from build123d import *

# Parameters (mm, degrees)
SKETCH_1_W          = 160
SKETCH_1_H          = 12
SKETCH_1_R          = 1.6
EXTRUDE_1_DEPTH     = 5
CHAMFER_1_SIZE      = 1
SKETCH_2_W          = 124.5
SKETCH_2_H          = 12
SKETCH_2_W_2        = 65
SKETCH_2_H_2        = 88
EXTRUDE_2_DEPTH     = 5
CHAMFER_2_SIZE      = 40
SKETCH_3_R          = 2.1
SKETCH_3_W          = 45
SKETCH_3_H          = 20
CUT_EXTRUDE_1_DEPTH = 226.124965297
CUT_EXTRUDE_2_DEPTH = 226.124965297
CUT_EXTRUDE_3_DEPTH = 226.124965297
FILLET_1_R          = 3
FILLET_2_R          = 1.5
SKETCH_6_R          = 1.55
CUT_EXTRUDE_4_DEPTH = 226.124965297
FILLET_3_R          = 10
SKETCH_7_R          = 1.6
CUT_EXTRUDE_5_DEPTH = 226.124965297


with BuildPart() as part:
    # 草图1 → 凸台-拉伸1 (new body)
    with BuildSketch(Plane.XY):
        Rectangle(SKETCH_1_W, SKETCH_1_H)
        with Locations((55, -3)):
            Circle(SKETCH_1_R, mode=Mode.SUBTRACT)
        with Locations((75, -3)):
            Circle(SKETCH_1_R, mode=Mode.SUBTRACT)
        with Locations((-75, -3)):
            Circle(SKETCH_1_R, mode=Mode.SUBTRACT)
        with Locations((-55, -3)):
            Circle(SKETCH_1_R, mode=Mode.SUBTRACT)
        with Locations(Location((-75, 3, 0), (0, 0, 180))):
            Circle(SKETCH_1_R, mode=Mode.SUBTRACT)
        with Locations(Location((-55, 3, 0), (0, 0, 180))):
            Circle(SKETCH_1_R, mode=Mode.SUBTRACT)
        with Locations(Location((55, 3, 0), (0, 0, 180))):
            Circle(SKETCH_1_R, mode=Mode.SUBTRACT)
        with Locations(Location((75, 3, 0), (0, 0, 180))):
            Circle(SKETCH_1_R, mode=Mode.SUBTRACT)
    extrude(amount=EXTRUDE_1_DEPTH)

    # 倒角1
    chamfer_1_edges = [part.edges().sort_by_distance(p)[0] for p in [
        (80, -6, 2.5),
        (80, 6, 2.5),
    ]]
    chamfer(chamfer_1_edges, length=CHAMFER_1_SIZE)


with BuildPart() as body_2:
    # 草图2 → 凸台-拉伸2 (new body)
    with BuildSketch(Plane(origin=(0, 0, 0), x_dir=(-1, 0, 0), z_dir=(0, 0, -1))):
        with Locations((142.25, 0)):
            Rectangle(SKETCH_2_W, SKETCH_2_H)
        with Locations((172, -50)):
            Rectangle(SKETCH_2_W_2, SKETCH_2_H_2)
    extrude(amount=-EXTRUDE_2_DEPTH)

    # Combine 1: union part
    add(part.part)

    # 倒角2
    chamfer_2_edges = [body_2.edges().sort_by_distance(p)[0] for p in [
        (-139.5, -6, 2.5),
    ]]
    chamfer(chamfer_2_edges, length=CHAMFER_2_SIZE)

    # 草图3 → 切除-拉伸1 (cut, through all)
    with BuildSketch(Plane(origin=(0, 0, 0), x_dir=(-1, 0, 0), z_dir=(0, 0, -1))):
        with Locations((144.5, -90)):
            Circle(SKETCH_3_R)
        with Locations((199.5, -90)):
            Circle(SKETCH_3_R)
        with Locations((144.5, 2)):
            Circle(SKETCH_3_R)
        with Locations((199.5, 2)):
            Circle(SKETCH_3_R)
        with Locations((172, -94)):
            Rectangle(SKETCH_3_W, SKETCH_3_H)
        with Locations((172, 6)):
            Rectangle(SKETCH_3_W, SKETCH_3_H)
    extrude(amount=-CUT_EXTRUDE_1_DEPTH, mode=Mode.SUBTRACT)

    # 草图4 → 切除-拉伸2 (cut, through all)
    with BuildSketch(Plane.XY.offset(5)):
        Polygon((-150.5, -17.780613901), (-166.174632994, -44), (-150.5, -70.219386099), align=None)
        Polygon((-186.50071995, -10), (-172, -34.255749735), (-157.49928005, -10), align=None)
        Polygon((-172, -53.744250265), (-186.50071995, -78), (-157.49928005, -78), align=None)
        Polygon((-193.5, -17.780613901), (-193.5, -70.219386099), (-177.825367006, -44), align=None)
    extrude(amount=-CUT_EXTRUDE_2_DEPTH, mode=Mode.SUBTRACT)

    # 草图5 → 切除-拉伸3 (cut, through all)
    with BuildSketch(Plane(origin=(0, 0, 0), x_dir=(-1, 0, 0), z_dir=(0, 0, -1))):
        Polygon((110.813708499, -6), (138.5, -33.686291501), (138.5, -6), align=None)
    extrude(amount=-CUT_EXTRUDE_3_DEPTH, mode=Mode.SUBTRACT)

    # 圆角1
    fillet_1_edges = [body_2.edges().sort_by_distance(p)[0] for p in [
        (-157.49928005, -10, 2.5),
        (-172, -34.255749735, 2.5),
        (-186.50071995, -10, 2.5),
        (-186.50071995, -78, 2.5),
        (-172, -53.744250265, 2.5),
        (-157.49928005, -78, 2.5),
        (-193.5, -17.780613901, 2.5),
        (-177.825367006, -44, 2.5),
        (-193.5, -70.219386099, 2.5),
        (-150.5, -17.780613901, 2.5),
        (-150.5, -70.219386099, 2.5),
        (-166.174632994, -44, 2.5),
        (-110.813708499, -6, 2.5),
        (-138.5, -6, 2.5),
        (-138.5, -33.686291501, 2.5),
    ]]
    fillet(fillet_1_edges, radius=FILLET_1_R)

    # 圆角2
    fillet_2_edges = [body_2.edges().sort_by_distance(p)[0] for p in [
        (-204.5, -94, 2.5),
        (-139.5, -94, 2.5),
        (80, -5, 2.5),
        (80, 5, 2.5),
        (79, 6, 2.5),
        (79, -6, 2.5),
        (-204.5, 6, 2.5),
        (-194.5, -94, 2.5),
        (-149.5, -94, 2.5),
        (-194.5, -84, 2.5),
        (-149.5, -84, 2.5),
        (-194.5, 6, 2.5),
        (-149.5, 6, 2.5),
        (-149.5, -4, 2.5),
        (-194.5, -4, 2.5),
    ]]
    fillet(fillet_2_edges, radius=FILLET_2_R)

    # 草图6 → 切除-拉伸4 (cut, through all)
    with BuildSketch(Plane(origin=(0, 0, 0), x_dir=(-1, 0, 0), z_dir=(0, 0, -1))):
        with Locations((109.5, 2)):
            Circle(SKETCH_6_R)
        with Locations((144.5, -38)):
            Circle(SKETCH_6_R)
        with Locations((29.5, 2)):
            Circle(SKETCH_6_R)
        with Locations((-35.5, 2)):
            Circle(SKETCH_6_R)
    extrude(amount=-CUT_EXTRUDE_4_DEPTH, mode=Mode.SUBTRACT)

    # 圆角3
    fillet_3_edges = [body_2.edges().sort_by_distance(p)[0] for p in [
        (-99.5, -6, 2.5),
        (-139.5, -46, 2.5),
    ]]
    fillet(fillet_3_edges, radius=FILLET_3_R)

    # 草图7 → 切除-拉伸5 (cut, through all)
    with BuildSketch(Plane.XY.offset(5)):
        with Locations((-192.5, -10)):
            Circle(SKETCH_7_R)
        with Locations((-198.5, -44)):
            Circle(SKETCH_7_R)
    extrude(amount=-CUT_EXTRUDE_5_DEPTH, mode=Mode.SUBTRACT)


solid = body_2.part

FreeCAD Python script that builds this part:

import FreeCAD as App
import Part
import Sketcher
from FreeCAD import Vector


def edges_at(feature, points):
    """Names of the edges that pass closest to the given points."""
    edges = feature.Shape.Edges
    near = lambda p: min(range(len(edges)), key=lambda i: edges[i].distToShape(Part.Vertex(*p))[0])
    return sorted({f"Edge{near(p) + 1}" for p in points})


def add_polygon(sketch, points):
    """Adds a closed chain of lines whose ends are joined by coincident constraints."""
    first, n = sketch.GeometryCount, len(points)
    for a, b in zip(points, points[1:] + points[:1]):
        sketch.addGeometry(Part.LineSegment(App.Vector(*a, 0), App.Vector(*b, 0)), False)
    for i in range(n):
        sketch.addConstraint(Sketcher.Constraint("Coincident", first + i, 2, first + (i + 1) % n, 1))

doc = App.newDocument("Part")
body = doc.addObject("PartDesign::Body", "Body")

# Sketch on XY plane
sketch1 = body.newObject("Sketcher::SketchObject", "Sketch")
sketch1.AttachmentSupport = (doc.getObject("XY_Plane"), [""])
sketch1.MapMode = "FlatFace"
add_polygon(sketch1, [(-80, 6), (-80, -6), (80, -6), (80, 6)])  # lines 0-3
sketch1.addGeometry(Part.Circle(Vector(-75, -3, 0), Vector(0, 0, 1), 1.6), False)  # 4
sketch1.addGeometry(Part.Circle(Vector(-55, -3, 0), Vector(0, 0, 1), 1.6), False)  # 5
sketch1.addGeometry(Part.Circle(Vector(55, -3, 0), Vector(0, 0, 1), 1.6), False)  # 6
sketch1.addGeometry(Part.Circle(Vector(75, -3, 0), Vector(0, 0, 1), 1.6), False)  # 7
sketch1.addGeometry(Part.Circle(Vector(-75, 3, 0), Vector(0, 0, 1), 1.6), False)  # 8
sketch1.addGeometry(Part.Circle(Vector(-55, 3, 0), Vector(0, 0, 1), 1.6), False)  # 9
sketch1.addGeometry(Part.Circle(Vector(55, 3, 0), Vector(0, 0, 1), 1.6), False)  # 10
sketch1.addGeometry(Part.Circle(Vector(75, 3, 0), Vector(0, 0, 1), 1.6), False)  # 11
sketch1.addConstraint([
    Sketcher.Constraint("Vertical", 0),
    Sketcher.Constraint("Horizontal", 1),
    Sketcher.Constraint("Vertical", 2),
    Sketcher.Constraint("Horizontal", 3),
    Sketcher.Constraint("Equal", 4, 5),
    Sketcher.Constraint("Equal", 5, 6),
    Sketcher.Constraint("Equal", 6, 7),
    Sketcher.Constraint("Equal", 7, 8),
    Sketcher.Constraint("Equal", 8, 9),
    Sketcher.Constraint("Equal", 9, 10),
    Sketcher.Constraint("Equal", 10, 11),
    Sketcher.Constraint("Symmetric", 7, 3, 8, 3, -1, 1),
    Sketcher.Constraint("Symmetric", 6, 3, 9, 3, -1, 1),
    Sketcher.Constraint("Symmetric", 5, 3, 10, 3, -1, 1),
    Sketcher.Constraint("Symmetric", 4, 3, 11, 3, -1, 1),
    Sketcher.Constraint("Symmetric", 0, 2, 2, 2, -1, 1),
    Sketcher.Constraint("Symmetric", 5, 3, 6, 3, -2),
    Sketcher.Constraint("Symmetric", 4, 3, 7, 3, -2),
    Sketcher.Constraint("Horizontal", 4, 3, 5, 3),
    Sketcher.Constraint("Diameter", 4, 3.2),
    Sketcher.Constraint("DistanceX", 1, 1, 1, 2, 160.0),
    Sketcher.Constraint("DistanceY", 0, 2, 0, 1, 12.0),
    Sketcher.Constraint("DistanceX", 4, 3, -1, 1, 75.0),
    Sketcher.Constraint("DistanceY", 4, 3, -1, 1, 3.0),
    Sketcher.Constraint("DistanceX", 5, 3, -1, 1, 55.0),
])
pad1 = body.newObject("PartDesign::Pad", "Pad")
pad1.Profile = sketch1
pad1.Length = 5
doc.recompute()

chamfer = body.newObject("PartDesign::Chamfer", "Chamfer")
chamfer.Base = (pad1, edges_at(pad1, [(80, -6, 2.5), (80, 6, 2.5)]))
chamfer.Size = 1
body2 = doc.addObject("PartDesign::Body", "Body001")

# Sketch on XY plane
sketch2 = body2.newObject("Sketcher::SketchObject", "Sketch001")
sketch2.AttachmentSupport = (doc.getObject("XY_Plane001"), [""])
sketch2.MapMode = "FlatFace"
add_polygon(sketch2, [(-80, 6), (-80, -6), (-140, -6), (-140, -94), (-204, -94), (-204, 6)])  # lines 0-5
sketch2.addConstraint([
    Sketcher.Constraint("Vertical", 0),
    Sketcher.Constraint("Horizontal", 1),
    Sketcher.Constraint("Vertical", 2),
    Sketcher.Constraint("Horizontal", 3),
    Sketcher.Constraint("Vertical", 4),
    Sketcher.Constraint("Horizontal", 5),
    Sketcher.Constraint("DistanceX", 3, 2, 3, 1, 65.0),
    Sketcher.Constraint("DistanceY", 0, 2, 0, 1, 12.0),
    Sketcher.Constraint("DistanceY", 2, 2, 2, 1, 88.0),
    Sketcher.Constraint("DistanceX", 1, 2, 1, 1, 59.5),
    Sketcher.Constraint("DistanceX", 0, 2, -1, 1, 80.0),
    Sketcher.Constraint("DistanceY", 0, 2, -1, 1, 6.0),
])
pad2 = body2.newObject("PartDesign::Pad", "Pad001")
pad2.Profile = sketch2
pad2.Length = 5
doc.recompute()

boolean = body2.newObject("PartDesign::Boolean", "Boolean")
boolean.Type = "Fuse"
boolean.addObjects([body])
doc.recompute()

chamfer2 = body2.newObject("PartDesign::Chamfer", "Chamfer001")
chamfer2.Base = (boolean, edges_at(boolean, [(-139.5, -6, 2.5)]))
chamfer2.Size = 40

# Sketch on XY plane
sketch3 = body2.newObject("Sketcher::SketchObject", "Sketch002")
sketch3.AttachmentSupport = (doc.getObject("XY_Plane001"), [""])
sketch3.MapMode = "FlatFace"
sketch3.addGeometry(Part.Circle(Vector(-144.5, -90, 0), Vector(0, 0, 1), 2.1), False)  # 0
sketch3.addGeometry(Part.Circle(Vector(-199.5, -90, 0), Vector(0, 0, 1), 2.1), False)  # 1
sketch3.addGeometry(Part.Circle(Vector(-144.5, 2, 0), Vector(0, 0, 1), 2.1), False)  # 2
sketch3.addGeometry(Part.Circle(Vector(-199.5, 2, 0), Vector(0, 0, 1), 2.1), False)  # 3
add_polygon(sketch3, [(-149.5, -84), (-149.5, -104), (-194.5, -104), (-194.5, -84)])  # lines 4-7
add_polygon(sketch3, [(-149.5, 16), (-149.5, -4), (-194.5, -4), (-194.5, 16)])  # lines 8-11
sketch3.addConstraint([
    Sketcher.Constraint("Vertical", 4),
    Sketcher.Constraint("Horizontal", 5),
    Sketcher.Constraint("Vertical", 6),
    Sketcher.Constraint("Horizontal", 7),
    Sketcher.Constraint("Vertical", 8),
    Sketcher.Constraint("Horizontal", 9),
    Sketcher.Constraint("Vertical", 10),
    Sketcher.Constraint("Horizontal", 11),
    Sketcher.Constraint("Equal", 0, 1),
    Sketcher.Constraint("Equal", 1, 2),
    Sketcher.Constraint("Equal", 2, 3),
    Sketcher.Constraint("Horizontal", 0, 3, 1, 3),
    Sketcher.Constraint("Horizontal", 2, 3, 3, 3),
    Sketcher.Constraint("Vertical", 0, 3, 2, 3),
    Sketcher.Constraint("Vertical", 1, 3, 3, 3),
    Sketcher.Constraint("Vertical", 7, 2, 8, 2),
    Sketcher.Constraint("Vertical", 6, 2, 9, 2),
    Sketcher.Constraint("Equal", 6, 8),
    Sketcher.Constraint("Diameter", 0, 4.2),
    Sketcher.Constraint("DistanceX", 5, 2, 5, 1, 45.0),
    Sketcher.Constraint("DistanceY", 4, 2, 4, 1, 20.0),
    Sketcher.Constraint("DistanceY", 0, 3, -1, 1, 90.0),
    Sketcher.Constraint("DistanceY", -1, 1, 2, 3, 2.0),
    Sketcher.Constraint("DistanceY", 4, 2, -1, 1, 104.0),
    Sketcher.Constraint("DistanceY", 8, 2, -1, 1, 4.0),
    Sketcher.Constraint("DistanceX", 1, 3, 0, 3, 55.0),
    Sketcher.Constraint("DistanceX", 4, 2, 0, 3, 5.0),
    Sketcher.Constraint("DistanceX", 0, 3, -1, 1, 144.5),
])
pocket1 = body2.newObject("PartDesign::Pocket", "Pocket")
pocket1.Profile = sketch3
pocket1.Type = "ThroughAll"
pocket1.Reversed = True

# Sketch on XY plane
sketch4 = body2.newObject("Sketcher::SketchObject", "Sketch003")
sketch4.AttachmentSupport = (doc.getObject("XY_Plane001"), [""])
sketch4.MapMode = "FlatFace"
sketch4.AttachmentOffset = App.Placement(Vector(0, 0, 5), App.Rotation())
add_polygon(sketch4, [(-150, -18), (-166, -44), (-150, -70)])  # lines 0-2
add_polygon(sketch4, [(-187, -10), (-172, -34), (-157, -10)])  # lines 3-5
add_polygon(sketch4, [(-172, -54), (-187, -78), (-157, -78)])  # lines 6-8
add_polygon(sketch4, [(-194, -18), (-194, -70), (-178, -44)])  # lines 9-11
sketch4.addConstraint([
    Sketcher.Constraint("Vertical", 2),
    Sketcher.Constraint("Horizontal", 5),
    Sketcher.Constraint("Horizontal", 7),
    Sketcher.Constraint("Vertical", 9),
    Sketcher.Constraint("Parallel", 1, 3),
    Sketcher.Constraint("Parallel", 0, 4),
    Sketcher.Constraint("Parallel", 4, 6),
    Sketcher.Constraint("Parallel", 3, 8),
    Sketcher.Constraint("Parallel", 6, 10),
    Sketcher.Constraint("Parallel", 8, 11),
    Sketcher.Constraint("Horizontal", 1, 2, 9, 2),
    Sketcher.Constraint("Horizontal", 0, 2, 10, 2),
    Sketcher.Constraint("Horizontal", 2, 2, 11, 2),
    Sketcher.Constraint("Vertical", 5, 2, 6, 2),
    Sketcher.Constraint("Vertical", 4, 2, 7, 2),
    Sketcher.Constraint("DistanceY", 0, 2, -1, 1, 44.0),
    Sketcher.Constraint("DistanceX", 3, 2, -1, 1, 172.0),
    Sketcher.Constraint("DistanceY", 4, 2, -1, 1, 10.0),
    Sketcher.Constraint("DistanceY", 6, 2, -1, 1, 78.0),
    Sketcher.Constraint("DistanceX", 1, 2, -1, 1, 150.5),
    Sketcher.Constraint("DistanceX", 9, 2, -1, 1, 193.5),
    Sketcher.Constraint("DistanceX", 5, 2, 5, 1, 29.00144),
    Sketcher.Constraint("DistanceY", 8, 2, 3, 2, 19.488501),
    Sketcher.Constraint("Distance", 0, 30.547509),
])
pocket2 = body2.newObject("PartDesign::Pocket", "Pocket001")
pocket2.Profile = sketch4
pocket2.Type = "ThroughAll"

# Sketch on XY plane
sketch5 = body2.newObject("Sketcher::SketchObject", "Sketch004")
sketch5.AttachmentSupport = (doc.getObject("XY_Plane001"), [""])
sketch5.MapMode = "FlatFace"
add_polygon(sketch5, [(-111, -6), (-138, -34), (-138, -6)])  # lines 0-2
sketch5.addConstraint([
    Sketcher.Constraint("Vertical", 1),
    Sketcher.Constraint("Horizontal", 2),
    Sketcher.Constraint("Equal", 2, 1),
    Sketcher.Constraint("DistanceY", 1, 2, -1, 1, 6.0),
    Sketcher.Constraint("DistanceX", 0, 2, -1, 1, 138.5),
    Sketcher.Constraint("DistanceX", 2, 1, 2, 2, 27.686292),
])
pocket3 = body2.newObject("PartDesign::Pocket", "Pocket002")
pocket3.Profile = sketch5
pocket3.Type = "ThroughAll"
pocket3.Reversed = True
doc.recompute()

fillet = body2.newObject("PartDesign::Fillet", "Fillet")
fillet.Base = (pocket3, edges_at(pocket3, [
    (-157.499, -10, 2.5),
    (-172, -34.256, 2.5),
    (-186.501, -10, 2.5),
    (-186.501, -78, 2.5),
    (-172, -53.744, 2.5),
    (-157.499, -78, 2.5),
    (-193.5, -17.781, 2.5),
    (-177.825, -44, 2.5),
    (-193.5, -70.219, 2.5),
    (-150.5, -17.781, 2.5),
    (-150.5, -70.219, 2.5),
    (-166.175, -44, 2.5),
    (-110.814, -6, 2.5),
    (-138.5, -6, 2.5),
    (-138.5, -33.686, 2.5),
]))
fillet.Radius = 3
doc.recompute()

fillet2 = body2.newObject("PartDesign::Fillet", "Fillet001")
fillet2.Base = (fillet, edges_at(fillet, [
    (-204.5, -94, 2.5),
    (-139.5, -94, 2.5),
    (80, -5, 2.5),
    (80, 5, 2.5),
    (79, 6, 2.5),
    (79, -6, 2.5),
    (-204.5, 6, 2.5),
    (-194.5, -94, 2.5),
    (-149.5, -94, 2.5),
    (-194.5, -84, 2.5),
    (-149.5, -84, 2.5),
    (-194.5, 6, 2.5),
    (-149.5, 6, 2.5),
    (-149.5, -4, 2.5),
    (-194.5, -4, 2.5),
]))
fillet2.Radius = 1.5

# Sketch on XY plane
sketch6 = body2.newObject("Sketcher::SketchObject", "Sketch005")
sketch6.AttachmentSupport = (doc.getObject("XY_Plane001"), [""])
sketch6.MapMode = "FlatFace"
sketch6.addGeometry([
    Part.Circle(Vector(-109.5, 2, 0), Vector(0, 0, 1), 1.6),
    Part.Circle(Vector(-144.5, -38, 0), Vector(0, 0, 1), 1.6),
    Part.Circle(Vector(-29.5, 2, 0), Vector(0, 0, 1), 1.6),
    Part.Circle(Vector(35.5, 2, 0), Vector(0, 0, 1), 1.6),
], False)
sketch6.addConstraint([
    Sketcher.Constraint("Equal", 0, 1),
    Sketcher.Constraint("Equal", 1, 2),
    Sketcher.Constraint("Equal", 2, 3),
    Sketcher.Constraint("Horizontal", 0, 3, 2, 3),
    Sketcher.Constraint("Horizontal", 2, 3, 3, 3),
    Sketcher.Constraint("Diameter", 0, 3.1),
    Sketcher.Constraint("DistanceY", -1, 1, 0, 3, 2.0),
    Sketcher.Constraint("DistanceY", 1, 3, -1, 1, 38.0),
    Sketcher.Constraint("DistanceX", 1, 3, 0, 3, 35.0),
    Sketcher.Constraint("DistanceX", 0, 3, 2, 3, 80.0),
    Sketcher.Constraint("DistanceX", 2, 3, 3, 3, 65.0),
    Sketcher.Constraint("DistanceX", 0, 3, -1, 1, 109.5),
])
pocket4 = body2.newObject("PartDesign::Pocket", "Pocket003")
pocket4.Profile = sketch6
pocket4.Type = "ThroughAll"
pocket4.Reversed = True
doc.recompute()

fillet3 = body2.newObject("PartDesign::Fillet", "Fillet002")
fillet3.Base = (pocket4, edges_at(pocket4, [(-99.5, -6, 2.5), (-139.5, -46, 2.5)]))
fillet3.Radius = 10

# Sketch on XY plane
sketch7 = body2.newObject("Sketcher::SketchObject", "Sketch006")
sketch7.AttachmentSupport = (doc.getObject("XY_Plane001"), [""])
sketch7.MapMode = "FlatFace"
sketch7.AttachmentOffset = App.Placement(Vector(0, 0, 5), App.Rotation())
sketch7.addGeometry([
    Part.Circle(Vector(-192.5, -10, 0), Vector(0, 0, 1), 1.6),
    Part.Circle(Vector(-198.5, -44, 0), Vector(0, 0, 1), 1.6),
], False)
sketch7.addConstraint([
    Sketcher.Constraint("Equal", 0, 1),
    Sketcher.Constraint("Diameter", 0, 3.2),
    Sketcher.Constraint("DistanceY", 0, 3, -1, 1, 10.0),
    Sketcher.Constraint("DistanceY", 1, 3, -1, 1, 44.0),
    Sketcher.Constraint("DistanceX", 1, 3, 0, 3, 6.0),
    Sketcher.Constraint("DistanceX", 0, 3, -1, 1, 192.5),
])
pocket5 = body2.newObject("PartDesign::Pocket", "Pocket004")
pocket5.Profile = sketch7
pocket5.Type = "ThroughAll"

doc.recompute()
